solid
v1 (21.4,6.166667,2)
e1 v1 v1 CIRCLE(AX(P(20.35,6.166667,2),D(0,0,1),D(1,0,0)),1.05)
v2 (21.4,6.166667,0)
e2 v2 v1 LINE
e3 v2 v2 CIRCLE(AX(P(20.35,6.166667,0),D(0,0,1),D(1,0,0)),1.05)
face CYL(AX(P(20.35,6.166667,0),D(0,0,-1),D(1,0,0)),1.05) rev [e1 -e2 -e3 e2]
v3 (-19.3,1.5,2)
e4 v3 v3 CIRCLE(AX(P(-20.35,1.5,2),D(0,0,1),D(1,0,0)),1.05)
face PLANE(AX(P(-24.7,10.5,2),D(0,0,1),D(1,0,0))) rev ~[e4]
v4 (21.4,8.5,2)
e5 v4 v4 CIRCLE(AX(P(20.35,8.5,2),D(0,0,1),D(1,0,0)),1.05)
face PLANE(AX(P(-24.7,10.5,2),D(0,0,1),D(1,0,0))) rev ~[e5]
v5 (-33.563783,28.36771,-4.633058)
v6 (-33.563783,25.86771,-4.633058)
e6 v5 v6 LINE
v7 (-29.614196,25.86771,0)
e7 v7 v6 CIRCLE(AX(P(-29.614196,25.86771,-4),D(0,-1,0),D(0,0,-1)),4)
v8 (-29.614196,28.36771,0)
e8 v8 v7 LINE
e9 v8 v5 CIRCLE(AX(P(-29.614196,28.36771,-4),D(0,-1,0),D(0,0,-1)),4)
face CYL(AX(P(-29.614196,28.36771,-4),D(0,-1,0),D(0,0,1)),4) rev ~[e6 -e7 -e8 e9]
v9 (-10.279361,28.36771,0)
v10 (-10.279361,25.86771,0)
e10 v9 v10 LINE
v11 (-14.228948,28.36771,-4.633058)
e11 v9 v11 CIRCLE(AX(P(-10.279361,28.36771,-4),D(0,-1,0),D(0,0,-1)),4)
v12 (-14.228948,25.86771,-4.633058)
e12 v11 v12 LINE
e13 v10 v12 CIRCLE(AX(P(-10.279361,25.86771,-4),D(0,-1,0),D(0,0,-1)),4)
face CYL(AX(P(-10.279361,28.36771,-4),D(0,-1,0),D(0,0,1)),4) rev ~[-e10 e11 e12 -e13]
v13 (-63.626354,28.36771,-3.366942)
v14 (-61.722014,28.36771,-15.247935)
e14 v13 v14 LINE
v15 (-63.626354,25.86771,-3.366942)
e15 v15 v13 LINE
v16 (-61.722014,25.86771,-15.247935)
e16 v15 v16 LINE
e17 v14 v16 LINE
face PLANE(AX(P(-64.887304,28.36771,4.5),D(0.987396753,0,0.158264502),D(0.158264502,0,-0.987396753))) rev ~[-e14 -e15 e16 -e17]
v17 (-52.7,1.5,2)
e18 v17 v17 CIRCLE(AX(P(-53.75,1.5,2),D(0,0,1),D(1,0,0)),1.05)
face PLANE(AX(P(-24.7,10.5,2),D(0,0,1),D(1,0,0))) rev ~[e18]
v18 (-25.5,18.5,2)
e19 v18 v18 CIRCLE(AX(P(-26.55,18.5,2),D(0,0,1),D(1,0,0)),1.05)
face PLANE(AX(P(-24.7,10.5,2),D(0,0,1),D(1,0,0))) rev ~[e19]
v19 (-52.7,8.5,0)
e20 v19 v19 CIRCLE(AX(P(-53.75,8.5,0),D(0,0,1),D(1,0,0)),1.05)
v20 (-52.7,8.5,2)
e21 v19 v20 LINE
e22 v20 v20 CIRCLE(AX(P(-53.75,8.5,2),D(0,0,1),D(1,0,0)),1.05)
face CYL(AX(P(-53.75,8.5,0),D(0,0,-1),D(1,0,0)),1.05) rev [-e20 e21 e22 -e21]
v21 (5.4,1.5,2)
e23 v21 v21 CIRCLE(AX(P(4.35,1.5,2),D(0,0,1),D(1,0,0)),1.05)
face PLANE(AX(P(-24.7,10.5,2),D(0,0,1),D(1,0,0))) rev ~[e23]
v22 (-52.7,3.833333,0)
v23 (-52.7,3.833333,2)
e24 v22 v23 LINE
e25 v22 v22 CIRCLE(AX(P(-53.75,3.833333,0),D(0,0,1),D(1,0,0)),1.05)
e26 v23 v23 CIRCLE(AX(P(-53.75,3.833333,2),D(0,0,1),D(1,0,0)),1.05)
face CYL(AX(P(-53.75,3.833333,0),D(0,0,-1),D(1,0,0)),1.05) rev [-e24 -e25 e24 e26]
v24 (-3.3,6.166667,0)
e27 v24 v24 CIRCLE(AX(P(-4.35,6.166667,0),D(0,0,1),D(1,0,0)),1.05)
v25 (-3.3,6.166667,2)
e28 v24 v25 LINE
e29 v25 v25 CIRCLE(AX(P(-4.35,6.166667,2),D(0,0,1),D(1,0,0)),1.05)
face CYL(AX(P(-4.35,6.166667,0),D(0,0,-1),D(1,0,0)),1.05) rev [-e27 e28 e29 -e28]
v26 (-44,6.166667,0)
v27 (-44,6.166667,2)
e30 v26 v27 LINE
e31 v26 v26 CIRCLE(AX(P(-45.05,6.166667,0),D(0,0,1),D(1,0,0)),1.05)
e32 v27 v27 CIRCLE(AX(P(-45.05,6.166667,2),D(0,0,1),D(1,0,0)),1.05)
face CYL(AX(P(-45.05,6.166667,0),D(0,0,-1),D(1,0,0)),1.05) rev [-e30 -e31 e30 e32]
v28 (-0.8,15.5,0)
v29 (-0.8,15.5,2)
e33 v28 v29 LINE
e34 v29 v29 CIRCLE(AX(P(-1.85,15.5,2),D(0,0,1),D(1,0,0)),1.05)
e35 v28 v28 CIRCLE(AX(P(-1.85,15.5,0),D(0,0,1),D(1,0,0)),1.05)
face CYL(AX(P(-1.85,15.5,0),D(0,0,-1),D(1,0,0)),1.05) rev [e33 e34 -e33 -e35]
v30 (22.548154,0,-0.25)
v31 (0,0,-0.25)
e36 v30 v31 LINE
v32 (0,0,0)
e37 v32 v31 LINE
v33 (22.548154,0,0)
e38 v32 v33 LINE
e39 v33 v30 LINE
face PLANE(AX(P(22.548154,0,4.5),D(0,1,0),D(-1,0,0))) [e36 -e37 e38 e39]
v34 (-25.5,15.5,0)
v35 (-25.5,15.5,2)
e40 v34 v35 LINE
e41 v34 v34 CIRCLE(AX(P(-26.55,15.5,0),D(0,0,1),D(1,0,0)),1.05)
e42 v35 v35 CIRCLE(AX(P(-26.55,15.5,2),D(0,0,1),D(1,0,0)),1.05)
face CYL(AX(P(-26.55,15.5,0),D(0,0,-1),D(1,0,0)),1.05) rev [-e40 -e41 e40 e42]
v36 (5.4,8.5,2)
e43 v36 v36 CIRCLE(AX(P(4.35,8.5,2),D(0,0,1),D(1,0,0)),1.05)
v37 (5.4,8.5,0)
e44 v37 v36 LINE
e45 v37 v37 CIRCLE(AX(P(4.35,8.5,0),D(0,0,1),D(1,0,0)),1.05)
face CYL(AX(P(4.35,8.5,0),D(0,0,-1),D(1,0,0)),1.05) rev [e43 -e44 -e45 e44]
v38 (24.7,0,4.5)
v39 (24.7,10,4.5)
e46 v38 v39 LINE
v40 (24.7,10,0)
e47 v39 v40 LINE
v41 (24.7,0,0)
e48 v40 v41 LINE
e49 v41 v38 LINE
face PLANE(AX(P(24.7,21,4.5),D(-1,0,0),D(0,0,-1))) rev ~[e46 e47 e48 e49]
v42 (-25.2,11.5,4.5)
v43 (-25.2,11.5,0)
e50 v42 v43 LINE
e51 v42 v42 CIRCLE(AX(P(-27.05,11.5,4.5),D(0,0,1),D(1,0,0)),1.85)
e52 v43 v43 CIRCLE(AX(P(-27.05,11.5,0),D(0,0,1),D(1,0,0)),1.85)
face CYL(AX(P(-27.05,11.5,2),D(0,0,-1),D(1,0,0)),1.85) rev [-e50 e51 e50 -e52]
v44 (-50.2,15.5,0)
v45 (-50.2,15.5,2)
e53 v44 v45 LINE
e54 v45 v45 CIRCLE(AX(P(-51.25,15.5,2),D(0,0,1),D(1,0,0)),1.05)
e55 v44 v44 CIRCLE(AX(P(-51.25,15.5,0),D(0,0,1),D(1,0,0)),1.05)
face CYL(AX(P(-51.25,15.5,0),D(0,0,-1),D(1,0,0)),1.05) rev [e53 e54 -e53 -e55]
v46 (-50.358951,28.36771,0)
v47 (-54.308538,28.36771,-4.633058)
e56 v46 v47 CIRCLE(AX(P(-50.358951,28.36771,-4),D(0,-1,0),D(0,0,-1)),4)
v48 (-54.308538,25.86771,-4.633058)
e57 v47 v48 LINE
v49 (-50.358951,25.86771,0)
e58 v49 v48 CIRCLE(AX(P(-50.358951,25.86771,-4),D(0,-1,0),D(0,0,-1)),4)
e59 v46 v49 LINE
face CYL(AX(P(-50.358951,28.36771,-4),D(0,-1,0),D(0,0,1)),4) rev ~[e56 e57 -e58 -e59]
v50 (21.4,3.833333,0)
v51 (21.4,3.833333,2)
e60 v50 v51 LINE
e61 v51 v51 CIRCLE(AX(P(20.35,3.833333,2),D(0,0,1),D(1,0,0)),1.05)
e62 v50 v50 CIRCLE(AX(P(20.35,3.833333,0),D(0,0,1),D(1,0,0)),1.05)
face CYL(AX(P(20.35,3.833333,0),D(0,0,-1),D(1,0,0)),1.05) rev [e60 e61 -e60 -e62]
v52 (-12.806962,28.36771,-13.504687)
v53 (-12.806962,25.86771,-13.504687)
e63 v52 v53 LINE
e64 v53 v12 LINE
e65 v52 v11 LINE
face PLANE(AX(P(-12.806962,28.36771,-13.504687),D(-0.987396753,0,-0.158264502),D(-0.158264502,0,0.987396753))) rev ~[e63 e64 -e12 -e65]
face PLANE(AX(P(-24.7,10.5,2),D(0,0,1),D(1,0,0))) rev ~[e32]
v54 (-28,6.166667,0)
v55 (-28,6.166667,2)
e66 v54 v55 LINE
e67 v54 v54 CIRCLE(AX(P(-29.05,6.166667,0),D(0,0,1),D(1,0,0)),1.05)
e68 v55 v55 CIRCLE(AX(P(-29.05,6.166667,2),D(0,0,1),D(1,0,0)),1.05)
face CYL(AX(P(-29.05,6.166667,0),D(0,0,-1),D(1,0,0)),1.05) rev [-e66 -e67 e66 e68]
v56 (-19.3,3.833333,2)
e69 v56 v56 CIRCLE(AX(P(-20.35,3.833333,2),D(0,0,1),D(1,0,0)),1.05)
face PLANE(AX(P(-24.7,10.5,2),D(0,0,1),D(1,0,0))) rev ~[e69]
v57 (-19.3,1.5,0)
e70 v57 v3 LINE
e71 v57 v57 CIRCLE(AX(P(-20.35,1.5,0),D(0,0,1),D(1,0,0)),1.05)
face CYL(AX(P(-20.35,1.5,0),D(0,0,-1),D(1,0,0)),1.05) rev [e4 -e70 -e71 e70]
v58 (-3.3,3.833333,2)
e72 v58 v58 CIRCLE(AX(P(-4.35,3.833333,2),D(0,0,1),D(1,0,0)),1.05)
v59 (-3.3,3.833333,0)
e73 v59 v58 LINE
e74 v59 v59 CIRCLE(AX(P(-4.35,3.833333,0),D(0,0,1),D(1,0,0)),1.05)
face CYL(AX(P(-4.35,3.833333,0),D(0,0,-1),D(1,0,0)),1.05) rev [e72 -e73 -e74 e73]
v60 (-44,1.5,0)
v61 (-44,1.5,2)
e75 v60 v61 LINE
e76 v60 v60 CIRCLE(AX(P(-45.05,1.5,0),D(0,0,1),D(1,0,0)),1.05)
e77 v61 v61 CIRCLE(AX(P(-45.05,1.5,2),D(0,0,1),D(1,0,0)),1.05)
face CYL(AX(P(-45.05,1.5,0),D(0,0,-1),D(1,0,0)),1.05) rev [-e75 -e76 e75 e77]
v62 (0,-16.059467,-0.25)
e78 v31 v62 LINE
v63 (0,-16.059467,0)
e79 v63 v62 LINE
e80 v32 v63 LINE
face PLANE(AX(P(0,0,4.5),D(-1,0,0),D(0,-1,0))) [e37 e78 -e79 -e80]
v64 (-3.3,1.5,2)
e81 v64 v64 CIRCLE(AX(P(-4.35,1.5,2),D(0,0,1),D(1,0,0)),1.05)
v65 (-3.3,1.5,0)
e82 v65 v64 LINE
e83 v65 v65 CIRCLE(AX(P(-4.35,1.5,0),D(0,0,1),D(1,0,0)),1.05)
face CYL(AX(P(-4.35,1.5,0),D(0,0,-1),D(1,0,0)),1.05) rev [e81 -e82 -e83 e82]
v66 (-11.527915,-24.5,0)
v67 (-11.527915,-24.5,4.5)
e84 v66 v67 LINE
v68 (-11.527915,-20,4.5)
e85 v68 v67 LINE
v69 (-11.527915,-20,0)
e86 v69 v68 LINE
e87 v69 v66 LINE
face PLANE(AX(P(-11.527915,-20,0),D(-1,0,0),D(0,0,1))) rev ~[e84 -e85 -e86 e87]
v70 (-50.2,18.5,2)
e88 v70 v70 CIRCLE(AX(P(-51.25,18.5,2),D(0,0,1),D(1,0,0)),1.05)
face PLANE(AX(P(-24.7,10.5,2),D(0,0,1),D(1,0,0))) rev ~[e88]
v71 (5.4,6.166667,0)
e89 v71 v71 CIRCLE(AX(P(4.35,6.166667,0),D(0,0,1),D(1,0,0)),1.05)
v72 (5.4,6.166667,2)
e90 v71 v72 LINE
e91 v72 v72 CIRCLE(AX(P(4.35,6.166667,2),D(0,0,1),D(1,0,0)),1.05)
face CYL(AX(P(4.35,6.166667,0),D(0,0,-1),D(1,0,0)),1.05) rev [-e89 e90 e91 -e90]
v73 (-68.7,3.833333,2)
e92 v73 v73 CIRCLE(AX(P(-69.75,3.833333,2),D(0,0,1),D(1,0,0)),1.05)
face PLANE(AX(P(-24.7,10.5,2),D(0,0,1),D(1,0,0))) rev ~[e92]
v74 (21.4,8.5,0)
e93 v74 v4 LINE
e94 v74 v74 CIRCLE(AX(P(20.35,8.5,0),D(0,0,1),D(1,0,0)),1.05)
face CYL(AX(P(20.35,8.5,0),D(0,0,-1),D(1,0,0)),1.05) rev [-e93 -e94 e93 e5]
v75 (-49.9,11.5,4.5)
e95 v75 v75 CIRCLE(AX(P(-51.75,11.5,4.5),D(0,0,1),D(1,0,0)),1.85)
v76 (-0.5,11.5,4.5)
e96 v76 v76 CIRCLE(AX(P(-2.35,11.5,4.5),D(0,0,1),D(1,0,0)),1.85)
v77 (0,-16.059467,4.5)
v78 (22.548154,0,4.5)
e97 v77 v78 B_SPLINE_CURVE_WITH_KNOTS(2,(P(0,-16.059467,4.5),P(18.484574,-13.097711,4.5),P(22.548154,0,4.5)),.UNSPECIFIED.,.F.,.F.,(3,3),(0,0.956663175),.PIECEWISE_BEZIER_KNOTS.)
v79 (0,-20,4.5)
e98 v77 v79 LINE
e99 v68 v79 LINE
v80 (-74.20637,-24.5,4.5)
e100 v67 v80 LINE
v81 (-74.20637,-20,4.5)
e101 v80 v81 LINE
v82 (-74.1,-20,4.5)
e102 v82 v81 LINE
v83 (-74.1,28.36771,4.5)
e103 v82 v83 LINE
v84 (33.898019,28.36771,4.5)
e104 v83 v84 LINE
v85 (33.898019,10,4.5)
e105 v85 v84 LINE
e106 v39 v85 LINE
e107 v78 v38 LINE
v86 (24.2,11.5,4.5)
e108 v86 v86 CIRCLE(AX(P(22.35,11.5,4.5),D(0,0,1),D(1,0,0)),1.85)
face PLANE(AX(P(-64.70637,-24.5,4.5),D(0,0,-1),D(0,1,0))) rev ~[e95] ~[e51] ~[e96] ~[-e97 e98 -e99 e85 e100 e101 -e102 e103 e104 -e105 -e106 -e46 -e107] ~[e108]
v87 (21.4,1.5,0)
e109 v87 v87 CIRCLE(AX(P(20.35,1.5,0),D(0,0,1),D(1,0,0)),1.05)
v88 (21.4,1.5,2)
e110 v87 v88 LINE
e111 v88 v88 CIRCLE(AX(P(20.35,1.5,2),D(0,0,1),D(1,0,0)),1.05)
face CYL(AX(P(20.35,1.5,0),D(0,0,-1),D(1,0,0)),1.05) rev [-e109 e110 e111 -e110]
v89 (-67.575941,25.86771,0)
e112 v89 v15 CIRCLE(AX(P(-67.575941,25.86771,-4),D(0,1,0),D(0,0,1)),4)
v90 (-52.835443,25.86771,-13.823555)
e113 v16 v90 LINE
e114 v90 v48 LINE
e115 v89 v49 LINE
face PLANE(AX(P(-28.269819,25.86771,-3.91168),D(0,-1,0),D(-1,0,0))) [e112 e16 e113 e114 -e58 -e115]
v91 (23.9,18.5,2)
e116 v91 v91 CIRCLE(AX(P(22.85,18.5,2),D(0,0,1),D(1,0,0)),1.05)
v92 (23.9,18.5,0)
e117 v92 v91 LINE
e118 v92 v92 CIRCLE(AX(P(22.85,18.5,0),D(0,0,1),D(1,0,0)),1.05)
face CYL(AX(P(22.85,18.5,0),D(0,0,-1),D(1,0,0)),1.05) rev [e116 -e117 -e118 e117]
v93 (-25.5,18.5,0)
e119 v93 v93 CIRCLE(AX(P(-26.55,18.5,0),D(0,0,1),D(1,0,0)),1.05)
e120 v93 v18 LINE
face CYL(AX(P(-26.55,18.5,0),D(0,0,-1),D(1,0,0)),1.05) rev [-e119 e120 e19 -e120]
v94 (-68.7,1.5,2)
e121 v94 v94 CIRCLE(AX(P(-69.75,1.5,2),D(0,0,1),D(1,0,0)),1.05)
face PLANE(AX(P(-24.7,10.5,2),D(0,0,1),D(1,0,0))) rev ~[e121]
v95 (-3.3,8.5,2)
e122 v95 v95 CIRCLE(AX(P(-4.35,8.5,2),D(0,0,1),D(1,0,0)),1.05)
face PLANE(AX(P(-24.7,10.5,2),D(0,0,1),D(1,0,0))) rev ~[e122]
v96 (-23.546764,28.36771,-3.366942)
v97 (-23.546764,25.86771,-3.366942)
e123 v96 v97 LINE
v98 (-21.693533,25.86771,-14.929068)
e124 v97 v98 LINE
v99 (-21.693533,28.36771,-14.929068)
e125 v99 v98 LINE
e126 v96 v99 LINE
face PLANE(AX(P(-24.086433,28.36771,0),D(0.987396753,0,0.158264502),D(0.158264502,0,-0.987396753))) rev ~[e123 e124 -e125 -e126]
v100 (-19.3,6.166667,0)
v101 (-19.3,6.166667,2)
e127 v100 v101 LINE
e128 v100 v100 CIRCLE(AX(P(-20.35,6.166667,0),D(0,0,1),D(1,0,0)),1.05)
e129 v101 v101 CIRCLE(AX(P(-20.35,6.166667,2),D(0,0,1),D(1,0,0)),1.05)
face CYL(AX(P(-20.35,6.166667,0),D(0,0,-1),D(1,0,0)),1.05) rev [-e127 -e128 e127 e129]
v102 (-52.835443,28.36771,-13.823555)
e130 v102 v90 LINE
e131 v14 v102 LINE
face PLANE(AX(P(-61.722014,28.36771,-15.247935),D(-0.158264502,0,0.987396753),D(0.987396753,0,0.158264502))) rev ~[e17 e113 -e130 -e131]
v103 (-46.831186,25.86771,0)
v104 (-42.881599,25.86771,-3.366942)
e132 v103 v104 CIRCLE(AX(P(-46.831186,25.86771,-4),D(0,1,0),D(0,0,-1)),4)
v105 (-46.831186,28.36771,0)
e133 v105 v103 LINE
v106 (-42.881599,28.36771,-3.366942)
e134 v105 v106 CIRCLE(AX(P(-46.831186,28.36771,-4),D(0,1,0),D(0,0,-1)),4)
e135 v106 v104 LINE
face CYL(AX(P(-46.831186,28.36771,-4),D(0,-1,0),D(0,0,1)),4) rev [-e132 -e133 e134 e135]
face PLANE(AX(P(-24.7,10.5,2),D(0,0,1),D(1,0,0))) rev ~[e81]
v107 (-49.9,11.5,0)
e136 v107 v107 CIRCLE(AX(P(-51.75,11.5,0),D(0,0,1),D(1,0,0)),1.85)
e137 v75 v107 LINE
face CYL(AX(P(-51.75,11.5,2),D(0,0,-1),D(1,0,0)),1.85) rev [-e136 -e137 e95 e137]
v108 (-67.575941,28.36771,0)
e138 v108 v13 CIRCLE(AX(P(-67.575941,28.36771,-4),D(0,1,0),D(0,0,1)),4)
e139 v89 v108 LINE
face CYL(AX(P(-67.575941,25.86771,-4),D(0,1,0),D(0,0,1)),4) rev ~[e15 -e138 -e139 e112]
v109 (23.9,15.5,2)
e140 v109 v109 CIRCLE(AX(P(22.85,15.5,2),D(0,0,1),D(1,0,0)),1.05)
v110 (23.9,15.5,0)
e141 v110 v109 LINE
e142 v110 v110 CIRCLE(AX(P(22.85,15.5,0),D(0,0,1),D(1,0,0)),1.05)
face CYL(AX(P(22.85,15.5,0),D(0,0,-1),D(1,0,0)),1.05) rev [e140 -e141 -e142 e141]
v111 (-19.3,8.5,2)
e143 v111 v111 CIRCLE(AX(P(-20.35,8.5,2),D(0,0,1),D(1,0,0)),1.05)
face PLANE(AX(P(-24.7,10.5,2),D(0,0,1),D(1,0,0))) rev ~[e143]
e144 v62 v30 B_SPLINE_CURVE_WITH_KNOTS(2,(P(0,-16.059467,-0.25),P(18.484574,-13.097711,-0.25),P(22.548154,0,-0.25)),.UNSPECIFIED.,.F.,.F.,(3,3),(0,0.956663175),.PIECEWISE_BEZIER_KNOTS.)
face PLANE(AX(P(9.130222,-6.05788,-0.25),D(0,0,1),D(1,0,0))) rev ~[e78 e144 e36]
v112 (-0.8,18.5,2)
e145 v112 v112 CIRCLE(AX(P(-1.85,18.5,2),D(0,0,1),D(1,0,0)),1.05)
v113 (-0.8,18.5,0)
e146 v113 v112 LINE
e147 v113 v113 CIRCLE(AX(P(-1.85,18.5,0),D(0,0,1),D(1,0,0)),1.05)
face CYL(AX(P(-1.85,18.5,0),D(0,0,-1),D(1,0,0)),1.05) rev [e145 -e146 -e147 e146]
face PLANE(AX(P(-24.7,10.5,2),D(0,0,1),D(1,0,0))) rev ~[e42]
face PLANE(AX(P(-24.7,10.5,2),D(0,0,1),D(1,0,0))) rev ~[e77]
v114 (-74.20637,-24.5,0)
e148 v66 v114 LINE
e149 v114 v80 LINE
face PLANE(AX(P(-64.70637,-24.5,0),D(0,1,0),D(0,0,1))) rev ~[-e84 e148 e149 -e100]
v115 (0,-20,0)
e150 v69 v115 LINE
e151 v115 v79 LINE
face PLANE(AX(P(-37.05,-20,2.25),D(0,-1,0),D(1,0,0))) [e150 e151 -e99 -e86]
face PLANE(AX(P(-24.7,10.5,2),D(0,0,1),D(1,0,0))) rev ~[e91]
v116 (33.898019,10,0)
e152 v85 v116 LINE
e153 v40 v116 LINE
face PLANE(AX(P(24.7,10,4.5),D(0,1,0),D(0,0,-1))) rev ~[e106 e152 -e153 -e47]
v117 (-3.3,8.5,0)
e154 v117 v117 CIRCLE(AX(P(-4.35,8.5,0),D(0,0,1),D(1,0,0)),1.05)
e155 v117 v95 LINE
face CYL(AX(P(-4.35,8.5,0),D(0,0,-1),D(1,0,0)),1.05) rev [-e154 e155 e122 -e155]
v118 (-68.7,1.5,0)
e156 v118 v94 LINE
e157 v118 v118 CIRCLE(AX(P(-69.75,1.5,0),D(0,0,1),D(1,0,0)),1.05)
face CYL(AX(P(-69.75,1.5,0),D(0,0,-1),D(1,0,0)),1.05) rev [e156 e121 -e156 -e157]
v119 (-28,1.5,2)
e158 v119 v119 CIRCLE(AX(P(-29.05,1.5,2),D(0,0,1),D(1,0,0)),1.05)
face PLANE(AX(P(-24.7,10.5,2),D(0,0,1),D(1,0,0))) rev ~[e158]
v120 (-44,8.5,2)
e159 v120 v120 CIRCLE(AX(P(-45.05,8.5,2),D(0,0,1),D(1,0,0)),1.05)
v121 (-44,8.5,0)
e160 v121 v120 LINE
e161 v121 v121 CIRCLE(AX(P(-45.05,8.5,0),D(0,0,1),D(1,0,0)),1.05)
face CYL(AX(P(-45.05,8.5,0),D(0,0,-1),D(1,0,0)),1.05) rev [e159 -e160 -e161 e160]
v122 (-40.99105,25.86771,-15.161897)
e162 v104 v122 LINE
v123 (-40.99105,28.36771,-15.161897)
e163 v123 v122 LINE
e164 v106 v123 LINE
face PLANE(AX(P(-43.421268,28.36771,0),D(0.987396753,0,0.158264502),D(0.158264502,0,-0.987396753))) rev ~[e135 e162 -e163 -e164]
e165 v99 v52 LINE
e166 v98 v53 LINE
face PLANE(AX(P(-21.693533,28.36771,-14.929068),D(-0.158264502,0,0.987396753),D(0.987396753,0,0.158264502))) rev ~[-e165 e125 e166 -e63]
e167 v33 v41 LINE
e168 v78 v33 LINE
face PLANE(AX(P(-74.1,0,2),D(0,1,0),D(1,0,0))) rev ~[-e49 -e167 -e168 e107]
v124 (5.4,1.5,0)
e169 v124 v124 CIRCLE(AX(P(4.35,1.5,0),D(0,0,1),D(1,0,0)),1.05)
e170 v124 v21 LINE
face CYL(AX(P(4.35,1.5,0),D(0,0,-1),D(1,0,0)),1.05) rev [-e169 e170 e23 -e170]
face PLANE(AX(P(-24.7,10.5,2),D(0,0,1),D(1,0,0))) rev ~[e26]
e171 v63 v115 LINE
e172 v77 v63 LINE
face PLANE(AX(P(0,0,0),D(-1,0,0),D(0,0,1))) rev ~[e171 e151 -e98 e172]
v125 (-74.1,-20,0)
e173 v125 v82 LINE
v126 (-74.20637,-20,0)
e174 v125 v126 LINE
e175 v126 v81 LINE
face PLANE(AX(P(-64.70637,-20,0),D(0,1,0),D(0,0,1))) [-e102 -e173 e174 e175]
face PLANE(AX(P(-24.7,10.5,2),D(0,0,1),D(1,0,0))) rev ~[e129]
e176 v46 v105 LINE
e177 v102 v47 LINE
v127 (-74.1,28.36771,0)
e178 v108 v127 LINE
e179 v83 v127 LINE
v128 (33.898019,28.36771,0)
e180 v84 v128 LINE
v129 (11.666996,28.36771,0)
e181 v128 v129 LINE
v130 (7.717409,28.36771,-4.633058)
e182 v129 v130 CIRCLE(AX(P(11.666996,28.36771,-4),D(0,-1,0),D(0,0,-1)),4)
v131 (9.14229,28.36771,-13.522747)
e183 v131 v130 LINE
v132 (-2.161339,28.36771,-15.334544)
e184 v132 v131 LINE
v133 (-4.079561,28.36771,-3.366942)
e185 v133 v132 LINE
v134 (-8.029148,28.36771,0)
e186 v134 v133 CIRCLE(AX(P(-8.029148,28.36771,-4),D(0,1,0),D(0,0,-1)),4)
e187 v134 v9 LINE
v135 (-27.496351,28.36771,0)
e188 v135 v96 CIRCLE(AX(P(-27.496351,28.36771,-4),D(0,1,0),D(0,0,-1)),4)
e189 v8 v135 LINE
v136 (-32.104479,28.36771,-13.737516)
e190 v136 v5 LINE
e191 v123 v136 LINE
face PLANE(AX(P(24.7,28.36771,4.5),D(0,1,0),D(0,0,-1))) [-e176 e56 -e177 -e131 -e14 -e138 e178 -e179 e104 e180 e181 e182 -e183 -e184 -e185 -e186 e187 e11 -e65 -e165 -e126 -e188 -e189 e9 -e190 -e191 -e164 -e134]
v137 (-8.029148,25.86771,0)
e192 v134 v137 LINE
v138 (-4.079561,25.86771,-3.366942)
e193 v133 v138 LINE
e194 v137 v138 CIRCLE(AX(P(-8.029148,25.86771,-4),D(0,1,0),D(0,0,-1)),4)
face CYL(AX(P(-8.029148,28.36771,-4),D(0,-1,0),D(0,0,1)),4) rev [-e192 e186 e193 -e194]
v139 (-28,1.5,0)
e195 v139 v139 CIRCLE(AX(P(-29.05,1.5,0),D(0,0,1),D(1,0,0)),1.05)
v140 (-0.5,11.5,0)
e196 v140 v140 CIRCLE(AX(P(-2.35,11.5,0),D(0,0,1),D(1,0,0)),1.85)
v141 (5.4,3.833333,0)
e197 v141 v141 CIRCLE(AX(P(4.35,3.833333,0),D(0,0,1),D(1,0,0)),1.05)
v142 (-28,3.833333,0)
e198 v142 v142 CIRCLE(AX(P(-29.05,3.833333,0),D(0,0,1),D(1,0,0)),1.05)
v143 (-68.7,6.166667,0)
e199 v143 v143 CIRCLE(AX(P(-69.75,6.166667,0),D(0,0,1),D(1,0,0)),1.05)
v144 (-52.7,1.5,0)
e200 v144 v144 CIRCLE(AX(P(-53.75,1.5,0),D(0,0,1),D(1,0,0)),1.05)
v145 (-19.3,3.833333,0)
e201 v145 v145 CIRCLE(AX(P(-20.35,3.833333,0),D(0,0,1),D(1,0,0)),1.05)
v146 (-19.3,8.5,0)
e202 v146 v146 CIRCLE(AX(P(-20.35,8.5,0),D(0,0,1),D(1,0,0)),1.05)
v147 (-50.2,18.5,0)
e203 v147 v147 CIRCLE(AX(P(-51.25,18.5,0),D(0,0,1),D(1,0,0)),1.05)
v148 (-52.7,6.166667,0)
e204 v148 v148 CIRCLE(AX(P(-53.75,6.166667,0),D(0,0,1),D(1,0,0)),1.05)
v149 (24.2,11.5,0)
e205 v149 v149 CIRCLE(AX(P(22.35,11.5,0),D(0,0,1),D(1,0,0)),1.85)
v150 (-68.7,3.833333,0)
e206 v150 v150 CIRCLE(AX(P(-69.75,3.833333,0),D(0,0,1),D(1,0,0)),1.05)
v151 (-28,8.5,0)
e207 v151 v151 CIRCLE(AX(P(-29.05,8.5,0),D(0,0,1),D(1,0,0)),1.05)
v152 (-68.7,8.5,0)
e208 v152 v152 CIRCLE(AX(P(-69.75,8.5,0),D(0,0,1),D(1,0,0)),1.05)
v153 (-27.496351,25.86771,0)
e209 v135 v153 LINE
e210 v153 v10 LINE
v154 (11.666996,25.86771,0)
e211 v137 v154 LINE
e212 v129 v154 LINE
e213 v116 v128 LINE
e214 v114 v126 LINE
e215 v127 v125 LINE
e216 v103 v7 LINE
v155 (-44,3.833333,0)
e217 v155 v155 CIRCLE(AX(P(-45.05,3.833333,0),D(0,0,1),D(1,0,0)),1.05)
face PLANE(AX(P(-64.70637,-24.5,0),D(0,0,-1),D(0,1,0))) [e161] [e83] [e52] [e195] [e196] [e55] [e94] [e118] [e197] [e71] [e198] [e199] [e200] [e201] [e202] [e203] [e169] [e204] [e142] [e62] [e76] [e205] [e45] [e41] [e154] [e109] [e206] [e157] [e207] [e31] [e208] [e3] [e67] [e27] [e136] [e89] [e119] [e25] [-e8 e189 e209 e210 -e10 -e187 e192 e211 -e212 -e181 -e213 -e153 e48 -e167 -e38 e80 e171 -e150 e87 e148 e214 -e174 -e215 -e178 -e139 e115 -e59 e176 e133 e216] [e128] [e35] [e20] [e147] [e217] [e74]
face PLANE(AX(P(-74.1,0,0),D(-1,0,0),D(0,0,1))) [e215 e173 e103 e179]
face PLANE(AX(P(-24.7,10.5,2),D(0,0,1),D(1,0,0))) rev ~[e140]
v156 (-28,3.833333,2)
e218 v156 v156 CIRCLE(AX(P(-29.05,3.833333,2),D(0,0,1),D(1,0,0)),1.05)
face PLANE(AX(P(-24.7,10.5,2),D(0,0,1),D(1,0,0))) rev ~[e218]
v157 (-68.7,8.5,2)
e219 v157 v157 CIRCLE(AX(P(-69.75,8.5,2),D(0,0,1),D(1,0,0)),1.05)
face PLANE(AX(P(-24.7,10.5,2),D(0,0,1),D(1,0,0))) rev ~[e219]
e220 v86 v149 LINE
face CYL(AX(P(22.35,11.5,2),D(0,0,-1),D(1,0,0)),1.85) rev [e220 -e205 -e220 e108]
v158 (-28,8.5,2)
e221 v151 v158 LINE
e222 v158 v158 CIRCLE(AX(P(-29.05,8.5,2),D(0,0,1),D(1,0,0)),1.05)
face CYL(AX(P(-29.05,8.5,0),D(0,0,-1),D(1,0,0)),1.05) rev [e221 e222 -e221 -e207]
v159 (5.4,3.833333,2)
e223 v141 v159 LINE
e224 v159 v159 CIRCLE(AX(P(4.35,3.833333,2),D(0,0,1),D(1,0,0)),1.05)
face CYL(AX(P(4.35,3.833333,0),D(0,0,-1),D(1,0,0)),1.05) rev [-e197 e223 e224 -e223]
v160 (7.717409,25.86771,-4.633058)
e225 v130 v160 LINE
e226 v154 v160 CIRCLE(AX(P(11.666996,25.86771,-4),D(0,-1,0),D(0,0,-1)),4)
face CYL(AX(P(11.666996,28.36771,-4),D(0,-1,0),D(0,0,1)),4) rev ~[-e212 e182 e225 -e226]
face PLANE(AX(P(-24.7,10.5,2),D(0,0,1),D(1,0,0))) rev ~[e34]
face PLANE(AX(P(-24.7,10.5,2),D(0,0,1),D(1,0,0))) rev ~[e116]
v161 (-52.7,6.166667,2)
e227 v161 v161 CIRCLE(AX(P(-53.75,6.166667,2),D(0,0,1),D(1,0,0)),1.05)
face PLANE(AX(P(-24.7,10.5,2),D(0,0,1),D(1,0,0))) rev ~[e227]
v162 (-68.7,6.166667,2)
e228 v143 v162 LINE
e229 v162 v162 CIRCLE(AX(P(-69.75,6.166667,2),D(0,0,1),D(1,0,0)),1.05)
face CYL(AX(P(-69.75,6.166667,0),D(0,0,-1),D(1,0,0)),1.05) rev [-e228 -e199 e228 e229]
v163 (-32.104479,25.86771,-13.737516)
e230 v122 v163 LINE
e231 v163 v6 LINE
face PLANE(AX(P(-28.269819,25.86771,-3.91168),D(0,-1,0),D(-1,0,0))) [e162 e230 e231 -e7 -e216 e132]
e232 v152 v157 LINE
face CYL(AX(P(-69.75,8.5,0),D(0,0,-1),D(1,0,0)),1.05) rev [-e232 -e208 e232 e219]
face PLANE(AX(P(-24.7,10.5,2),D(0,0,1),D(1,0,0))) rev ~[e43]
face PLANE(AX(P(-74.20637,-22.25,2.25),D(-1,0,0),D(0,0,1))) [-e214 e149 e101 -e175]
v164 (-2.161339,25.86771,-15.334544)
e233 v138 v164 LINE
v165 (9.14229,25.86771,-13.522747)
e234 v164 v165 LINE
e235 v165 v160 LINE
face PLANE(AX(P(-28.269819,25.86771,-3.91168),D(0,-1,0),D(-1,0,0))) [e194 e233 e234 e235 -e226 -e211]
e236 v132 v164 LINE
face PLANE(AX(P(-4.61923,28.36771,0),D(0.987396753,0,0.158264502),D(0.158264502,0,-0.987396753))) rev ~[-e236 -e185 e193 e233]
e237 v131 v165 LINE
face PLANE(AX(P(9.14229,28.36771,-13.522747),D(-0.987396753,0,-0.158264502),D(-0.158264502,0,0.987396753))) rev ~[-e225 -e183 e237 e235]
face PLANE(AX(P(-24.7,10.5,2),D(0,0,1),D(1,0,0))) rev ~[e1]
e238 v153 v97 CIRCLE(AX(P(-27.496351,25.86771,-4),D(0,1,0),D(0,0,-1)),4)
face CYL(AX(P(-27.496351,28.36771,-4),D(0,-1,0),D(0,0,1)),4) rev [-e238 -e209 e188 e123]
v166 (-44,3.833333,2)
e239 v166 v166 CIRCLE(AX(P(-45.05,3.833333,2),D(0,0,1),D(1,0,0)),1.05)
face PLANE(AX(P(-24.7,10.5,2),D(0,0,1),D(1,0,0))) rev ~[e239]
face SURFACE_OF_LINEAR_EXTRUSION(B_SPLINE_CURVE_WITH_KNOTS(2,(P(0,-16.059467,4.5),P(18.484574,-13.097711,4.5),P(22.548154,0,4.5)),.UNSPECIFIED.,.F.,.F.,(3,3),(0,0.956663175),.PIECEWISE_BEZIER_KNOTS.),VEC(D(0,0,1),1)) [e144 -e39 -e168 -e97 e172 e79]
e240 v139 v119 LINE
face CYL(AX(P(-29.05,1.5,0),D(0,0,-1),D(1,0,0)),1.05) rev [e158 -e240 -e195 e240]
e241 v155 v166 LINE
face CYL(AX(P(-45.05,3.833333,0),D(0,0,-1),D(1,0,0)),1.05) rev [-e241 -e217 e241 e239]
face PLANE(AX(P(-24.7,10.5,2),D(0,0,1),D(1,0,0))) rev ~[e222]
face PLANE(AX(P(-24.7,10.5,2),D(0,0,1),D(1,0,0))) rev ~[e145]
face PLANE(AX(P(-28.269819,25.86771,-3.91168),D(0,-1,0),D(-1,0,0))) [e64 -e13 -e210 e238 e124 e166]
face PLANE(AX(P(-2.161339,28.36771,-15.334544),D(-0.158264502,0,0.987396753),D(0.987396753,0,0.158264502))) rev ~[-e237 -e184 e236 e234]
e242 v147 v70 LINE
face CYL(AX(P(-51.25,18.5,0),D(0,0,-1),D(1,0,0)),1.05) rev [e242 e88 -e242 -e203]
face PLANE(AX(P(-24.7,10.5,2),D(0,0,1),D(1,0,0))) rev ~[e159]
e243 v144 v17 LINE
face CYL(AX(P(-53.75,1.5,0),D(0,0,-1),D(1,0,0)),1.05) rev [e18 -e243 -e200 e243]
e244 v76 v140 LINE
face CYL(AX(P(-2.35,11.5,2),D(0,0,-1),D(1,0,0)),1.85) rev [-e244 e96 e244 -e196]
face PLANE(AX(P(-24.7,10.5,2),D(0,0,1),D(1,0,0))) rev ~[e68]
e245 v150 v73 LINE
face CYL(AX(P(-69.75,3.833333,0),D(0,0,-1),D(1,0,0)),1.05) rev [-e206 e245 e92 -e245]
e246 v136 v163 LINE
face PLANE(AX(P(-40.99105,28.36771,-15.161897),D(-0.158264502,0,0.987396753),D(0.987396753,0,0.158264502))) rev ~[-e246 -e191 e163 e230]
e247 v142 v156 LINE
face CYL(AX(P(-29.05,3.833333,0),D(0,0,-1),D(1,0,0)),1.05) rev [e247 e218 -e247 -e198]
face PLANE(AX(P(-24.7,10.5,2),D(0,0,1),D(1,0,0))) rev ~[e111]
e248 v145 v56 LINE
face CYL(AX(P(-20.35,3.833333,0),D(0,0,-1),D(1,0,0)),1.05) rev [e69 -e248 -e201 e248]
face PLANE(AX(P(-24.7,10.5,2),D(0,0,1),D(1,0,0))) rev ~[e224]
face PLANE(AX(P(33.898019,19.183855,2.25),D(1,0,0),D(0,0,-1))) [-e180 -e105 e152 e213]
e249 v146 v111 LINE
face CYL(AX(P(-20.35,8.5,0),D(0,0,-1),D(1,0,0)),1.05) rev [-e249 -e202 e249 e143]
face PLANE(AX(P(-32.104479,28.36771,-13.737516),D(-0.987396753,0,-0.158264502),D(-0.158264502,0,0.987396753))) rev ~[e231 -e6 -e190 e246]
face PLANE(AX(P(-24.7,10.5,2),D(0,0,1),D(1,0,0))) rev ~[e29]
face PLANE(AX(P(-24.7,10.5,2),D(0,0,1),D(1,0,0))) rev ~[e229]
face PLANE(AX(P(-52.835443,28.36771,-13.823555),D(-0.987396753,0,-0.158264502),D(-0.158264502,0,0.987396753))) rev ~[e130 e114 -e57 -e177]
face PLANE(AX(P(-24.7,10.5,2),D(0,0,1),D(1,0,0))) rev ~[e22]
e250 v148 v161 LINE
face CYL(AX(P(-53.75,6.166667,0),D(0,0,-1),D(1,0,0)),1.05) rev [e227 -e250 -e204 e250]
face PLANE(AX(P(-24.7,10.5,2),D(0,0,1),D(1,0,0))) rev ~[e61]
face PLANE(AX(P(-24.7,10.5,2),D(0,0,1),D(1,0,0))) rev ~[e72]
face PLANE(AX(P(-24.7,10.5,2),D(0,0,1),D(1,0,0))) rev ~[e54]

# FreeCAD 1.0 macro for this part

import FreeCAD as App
import Part
import Sketcher


def edges_at(feature, points):
    """Names of the edges that pass closest to the given points."""
    edges = feature.Shape.Edges
    near = lambda p: min(range(len(edges)), key=lambda i: edges[i].distToShape(Part.Vertex(*p))[0])
    return sorted({f"Edge{near(p) + 1}" for p in points})

doc = App.newDocument("Part")
body = doc.addObject("PartDesign::Body", "Body")

# Sketch on XY plane
sketch1 = body.newObject("Sketcher::SketchObject", "Sketch")
sketch1.AttachmentSupport = (doc.getObject("XY_Plane"), [""])
sketch1.MapMode = "FlatFace"
sketch1.addGeometry(Part.LineSegment(App.Vector(0, 21, 0), App.Vector(0, 0, 0)), False)
sketch1.addGeometry(Part.LineSegment(App.Vector(0, 0, 0), App.Vector(24.7, 0, 0)), False)
sketch1.addGeometry(Part.LineSegment(App.Vector(24.7, 0, 0), App.Vector(24.7, 21, 0)), False)
sketch1.addGeometry(Part.LineSegment(App.Vector(24.7, 21, 0), App.Vector(0, 21, 0)), False)
sketch1.addGeometry(Part.Circle(App.Vector(4.3, 1.5, 0), App.Vector(0, 0, 1), 1.1), False)
sketch1.addGeometry(Part.Circle(App.Vector(4.3, 3.8, 0), App.Vector(0, 0, 1), 1.1), False)
sketch1.addGeometry(Part.Circle(App.Vector(4.3, 6.2, 0), App.Vector(0, 0, 1), 1.1), False)
sketch1.addGeometry(Part.Circle(App.Vector(4.3, 8.5, 0), App.Vector(0, 0, 1), 1.1), False)
sketch1.addGeometry(Part.Circle(App.Vector(20.4, 1.5, 0), App.Vector(0, 0, 1), 1.1), False)
sketch1.addGeometry(Part.Circle(App.Vector(20.4, 3.8, 0), App.Vector(0, 0, 1), 1.1), False)
sketch1.addGeometry(Part.Circle(App.Vector(20.4, 6.2, 0), App.Vector(0, 0, 1), 1.1), False)
sketch1.addGeometry(Part.Circle(App.Vector(20.4, 8.5, 0), App.Vector(0, 0, 1), 1.1), False)
sketch1.addGeometry(Part.Circle(App.Vector(22.4, 11.5, 0), App.Vector(0, 0, 1), 1.9), False)
sketch1.addGeometry(Part.Circle(App.Vector(22.9, 15.5, 0), App.Vector(0, 0, 1), 1.1), False)
sketch1.addGeometry(Part.Circle(App.Vector(22.9, 18.5, 0), App.Vector(0, 0, 1), 1.1), False)
sketch1.addConstraint(Sketcher.Constraint("Coincident", 0, 2, 1, 1))
sketch1.addConstraint(Sketcher.Constraint("Coincident", 1, 2, 2, 1))
sketch1.addConstraint(Sketcher.Constraint("Coincident", 2, 2, 3, 1))
sketch1.addConstraint(Sketcher.Constraint("Coincident", 3, 2, 0, 1))
sketch1.addConstraint(Sketcher.Constraint("Vertical", 0))
sketch1.addConstraint(Sketcher.Constraint("Horizontal", 1))
sketch1.addConstraint(Sketcher.Constraint("Vertical", 2))
sketch1.addConstraint(Sketcher.Constraint("Horizontal", 3))
sketch1.addConstraint(Sketcher.Constraint("Coincident", 0, 2, -1, 1))
sketch1.addConstraint(Sketcher.Constraint("Equal", 4, 5))
sketch1.addConstraint(Sketcher.Constraint("Equal", 5, 6))
sketch1.addConstraint(Sketcher.Constraint("Equal", 6, 7))
sketch1.addConstraint(Sketcher.Constraint("Equal", 7, 8))
sketch1.addConstraint(Sketcher.Constraint("Equal", 8, 9))
sketch1.addConstraint(Sketcher.Constraint("Equal", 9, 10))
sketch1.addConstraint(Sketcher.Constraint("Equal", 10, 11))
sketch1.addConstraint(Sketcher.Constraint("Equal", 11, 13))
sketch1.addConstraint(Sketcher.Constraint("Equal", 13, 14))
sketch1.addConstraint(Sketcher.Constraint("Horizontal", 4, 3, 8, 3))
sketch1.addConstraint(Sketcher.Constraint("Horizontal", 5, 3, 9, 3))
sketch1.addConstraint(Sketcher.Constraint("Horizontal", 6, 3, 10, 3))
sketch1.addConstraint(Sketcher.Constraint("Horizontal", 7, 3, 11, 3))
sketch1.addConstraint(Sketcher.Constraint("Vertical", 4, 3, 5, 3))
sketch1.addConstraint(Sketcher.Constraint("Vertical", 5, 3, 6, 3))
sketch1.addConstraint(Sketcher.Constraint("Vertical", 6, 3, 7, 3))
sketch1.addConstraint(Sketcher.Constraint("Vertical", 8, 3, 9, 3))
sketch1.addConstraint(Sketcher.Constraint("Vertical", 9, 3, 10, 3))
sketch1.addConstraint(Sketcher.Constraint("Vertical", 10, 3, 11, 3))
sketch1.addConstraint(Sketcher.Constraint("Vertical", 13, 3, 14, 3))
sketch1.addConstraint(Sketcher.Constraint("Diameter", 4, 2.1))
sketch1.addConstraint(Sketcher.Constraint("Diameter", 12, 3.7))
sketch1.addConstraint(Sketcher.Constraint("DistanceY", 0, 2, 0, 1, 21.0))
sketch1.addConstraint(Sketcher.Constraint("DistanceX", 1, 1, 1, 2, 24.7))
sketch1.addConstraint(Sketcher.Constraint("DistanceY", 4, 3, 7, 3, 7.0))
sketch1.addConstraint(Sketcher.Constraint("DistanceX", 4, 3, 8, 3, 16.0))
sketch1.addConstraint(Sketcher.Constraint("DistanceX", 11, 3, 12, 3, 2.0))
sketch1.addConstraint(Sketcher.Constraint("DistanceY", 11, 3, 12, 3, 3.0))
sketch1.addConstraint(Sketcher.Constraint("DistanceY", 12, 3, 13, 3, 4.0))
sketch1.addConstraint(Sketcher.Constraint("DistanceY", 13, 3, 14, 3, 3.0))
sketch1.addConstraint(Sketcher.Constraint("DistanceY", -1, 1, 4, 3, 1.5))
sketch1.addConstraint(Sketcher.Constraint("DistanceX", 12, 3, 13, 3, 0.5))
sketch1.addConstraint(Sketcher.Constraint("DistanceX", -1, 1, 4, 3, 4.35))
sketch1.addConstraint(Sketcher.Constraint("DistanceY", -1, 1, 5, 3, 3.833333))
sketch1.addConstraint(Sketcher.Constraint("DistanceY", -1, 1, 6, 3, 6.166667))
pad1 = body.newObject("PartDesign::Pad", "Pad")
pad1.Profile = sketch1
pad1.Length = 2
doc.recompute()

linearpattern = body.newObject("PartDesign::LinearPattern", "LinearPattern")
linearpattern.Originals = [pad1]
linearpattern.Direction = (doc.getObject("X_Axis"), [""])
linearpattern.Mode = "offset"
linearpattern.Offset = 24.7
linearpattern.Occurrences = 4
linearpattern.Reversed = True
body.Tip = linearpattern

# Sketch on XY plane
sketch2 = body.newObject("Sketcher::SketchObject", "Sketch001")
sketch2.AttachmentSupport = (doc.getObject("XY_Plane"), [""])
sketch2.MapMode = "FlatFace"
sketch2.AttachmentOffset = App.Placement(App.Vector(0, 0, 2), App.Rotation())
sketch2.addGeometry(Part.LineSegment(App.Vector(-74.1, 21, 0), App.Vector(-74.1, 0, 0)), False)
sketch2.addGeometry(Part.LineSegment(App.Vector(-74.1, 0, 0), App.Vector(24.7, 0, 0)), False)
sketch2.addGeometry(Part.LineSegment(App.Vector(24.7, 0, 0), App.Vector(24.7, 21, 0)), False)
sketch2.addGeometry(Part.LineSegment(App.Vector(24.7, 21, 0), App.Vector(-74.1, 21, 0)), False)
sketch2.addGeometry(Part.Circle(App.Vector(-51.7, 11.5, 0), App.Vector(0, 0, 1), 1.9), False)
sketch2.addGeometry(Part.Circle(App.Vector(-27, 11.5, 0), App.Vector(0, 0, 1), 1.9), False)
sketch2.addGeometry(Part.Circle(App.Vector(-2.3, 11.5, 0), App.Vector(0, 0, 1), 1.9), False)
sketch2.addGeometry(Part.Circle(App.Vector(22.4, 11.5, 0), App.Vector(0, 0, 1), 1.9), False)
sketch2.addConstraint(Sketcher.Constraint("Coincident", 0, 2, 1, 1))
sketch2.addConstraint(Sketcher.Constraint("Coincident", 1, 2, 2, 1))
sketch2.addConstraint(Sketcher.Constraint("Coincident", 2, 2, 3, 1))
sketch2.addConstraint(Sketcher.Constraint("Coincident", 3, 2, 0, 1))
sketch2.addConstraint(Sketcher.Constraint("Vertical", 0))
sketch2.addConstraint(Sketcher.Constraint("Horizontal", 1))
sketch2.addConstraint(Sketcher.Constraint("Vertical", 2))
sketch2.addConstraint(Sketcher.Constraint("Horizontal", 3))
sketch2.addConstraint(Sketcher.Constraint("Equal", 4, 5))
sketch2.addConstraint(Sketcher.Constraint("Equal", 5, 6))
sketch2.addConstraint(Sketcher.Constraint("Equal", 6, 7))
sketch2.addConstraint(Sketcher.Constraint("PointOnObject", 0, 2, -1))
sketch2.addConstraint(Sketcher.Constraint("Horizontal", 4, 3, 5, 3))
sketch2.addConstraint(Sketcher.Constraint("Horizontal", 5, 3, 6, 3))
sketch2.addConstraint(Sketcher.Constraint("Horizontal", 6, 3, 7, 3))
sketch2.addConstraint(Sketcher.Constraint("Diameter", 4, 3.7))
sketch2.addConstraint(Sketcher.Constraint("DistanceY", 0, 2, 0, 1, 21.0))
sketch2.addConstraint(Sketcher.Constraint("DistanceX", 1, 1, 1, 2, 98.8))
sketch2.addConstraint(Sketcher.Constraint("DistanceY", -1, 1, 4, 3, 11.5))
sketch2.addConstraint(Sketcher.Constraint("DistanceX", 0, 2, -1, 1, 74.1))
sketch2.addConstraint(Sketcher.Constraint("DistanceX", 4, 3, 5, 3, 24.7))
sketch2.addConstraint(Sketcher.Constraint("DistanceX", 5, 3, 6, 3, 24.7))
sketch2.addConstraint(Sketcher.Constraint("DistanceX", 6, 3, 7, 3, 24.7))
sketch2.addConstraint(Sketcher.Constraint("DistanceX", 4, 3, -1, 1, 51.75))
pad2 = body.newObject("PartDesign::Pad", "Pad001")
pad2.Profile = sketch2
pad2.Length = 2.5

# Sketch on XZ plane
sketch3 = body.newObject("Sketcher::SketchObject", "Sketch002")
sketch3.AttachmentSupport = (doc.getObject("XZ_Plane"), [""])
sketch3.MapMode = "FlatFace"
sketch3.AttachmentOffset = App.Placement(App.Vector(0, 0, -21), App.Rotation())
sketch3.addGeometry(Part.LineSegment(App.Vector(-74.1, 0, 0), App.Vector(-74.1, 4.5, 0)), False)
sketch3.addGeometry(Part.LineSegment(App.Vector(-74.1, 4.5, 0), App.Vector(24.7, 4.5, 0)), False)
sketch3.addGeometry(Part.LineSegment(App.Vector(24.7, 4.5, 0), App.Vector(24.7, 0, 0)), False)
sketch3.addGeometry(Part.LineSegment(App.Vector(24.7, 0, 0), App.Vector(-74.1, 0, 0)), False)
sketch3.addConstraint(Sketcher.Constraint("Coincident", 0, 2, 1, 1))
sketch3.addConstraint(Sketcher.Constraint("Coincident", 1, 2, 2, 1))
sketch3.addConstraint(Sketcher.Constraint("Coincident", 2, 2, 3, 1))
sketch3.addConstraint(Sketcher.Constraint("Coincident", 3, 2, 0, 1))
sketch3.addConstraint(Sketcher.Constraint("Vertical", 0))
sketch3.addConstraint(Sketcher.Constraint("Horizontal", 1))
sketch3.addConstraint(Sketcher.Constraint("Vertical", 2))
sketch3.addConstraint(Sketcher.Constraint("Horizontal", 3))
sketch3.addConstraint(Sketcher.Constraint("PointOnObject", 2, 2, -1))
sketch3.addConstraint(Sketcher.Constraint("DistanceX", 1, 1, 1, 2, 98.8))
sketch3.addConstraint(Sketcher.Constraint("DistanceY", 0, 1, 0, 2, 4.5))
sketch3.addConstraint(Sketcher.Constraint("DistanceX", 0, 2, -1, 1, 74.1))
pad3 = body.newObject("PartDesign::Pad", "Pad002")
pad3.Profile = sketch3
pad3.Length = 7.36771
pad3.Reversed = True

# Sketch on YZ plane
sketch4 = body.newObject("Sketcher::SketchObject", "Sketch003")
sketch4.AttachmentSupport = (doc.getObject("YZ_Plane"), [""])
sketch4.MapMode = "FlatFace"
sketch4.AttachmentOffset = App.Placement(App.Vector(0, 0, 24.7), App.Rotation())
sketch4.addGeometry(Part.LineSegment(App.Vector(28.4, 4.5, 0), App.Vector(10, 4.5, 0)), False)
sketch4.addGeometry(Part.LineSegment(App.Vector(10, 4.5, 0), App.Vector(10, 0, 0)), False)
sketch4.addGeometry(Part.LineSegment(App.Vector(10, 0, 0), App.Vector(28.4, 0, 0)), False)
sketch4.addGeometry(Part.LineSegment(App.Vector(28.4, 0, 0), App.Vector(28.4, 4.5, 0)), False)
sketch4.addConstraint(Sketcher.Constraint("Coincident", 0, 2, 1, 1))
sketch4.addConstraint(Sketcher.Constraint("Coincident", 1, 2, 2, 1))
sketch4.addConstraint(Sketcher.Constraint("Coincident", 2, 2, 3, 1))
sketch4.addConstraint(Sketcher.Constraint("Coincident", 3, 2, 0, 1))
sketch4.addConstraint(Sketcher.Constraint("Horizontal", 0))
sketch4.addConstraint(Sketcher.Constraint("Vertical", 1))
sketch4.addConstraint(Sketcher.Constraint("Horizontal", 2))
sketch4.addConstraint(Sketcher.Constraint("Vertical", 3))
sketch4.addConstraint(Sketcher.Constraint("PointOnObject", 1, 2, -1))
sketch4.addConstraint(Sketcher.Constraint("DistanceY", 1, 2, 1, 1, 4.5))
sketch4.addConstraint(Sketcher.Constraint("DistanceX", -1, 1, 0, 2, 10.0))
sketch4.addConstraint(Sketcher.Constraint("DistanceX", 0, 2, 0, 1, 18.36771))
pad4 = body.newObject("PartDesign::Pad", "Pad003")
pad4.Profile = sketch4
pad4.Length = 9.198019

# Sketch on XZ plane
sketch5 = body.newObject("Sketcher::SketchObject", "Sketch004")
sketch5.AttachmentSupport = (doc.getObject("XZ_Plane"), [""])
sketch5.MapMode = "FlatFace"
sketch5.addGeometry(Part.LineSegment(App.Vector(-74.1, 4.5, 0), App.Vector(-74.1, 0, 0)), False)
sketch5.addGeometry(Part.LineSegment(App.Vector(-74.1, 0, 0), App.Vector(0, 0, 0)), False)
sketch5.addGeometry(Part.LineSegment(App.Vector(0, 0, 0), App.Vector(0, 4.5, 0)), False)
sketch5.addGeometry(Part.LineSegment(App.Vector(0, 4.5, 0), App.Vector(-74.1, 4.5, 0)), False)
sketch5.addConstraint(Sketcher.Constraint("Coincident", 0, 2, 1, 1))
sketch5.addConstraint(Sketcher.Constraint("Coincident", 1, 2, 2, 1))
sketch5.addConstraint(Sketcher.Constraint("Coincident", 2, 2, 3, 1))
sketch5.addConstraint(Sketcher.Constraint("Coincident", 3, 2, 0, 1))
sketch5.addConstraint(Sketcher.Constraint("Vertical", 0))
sketch5.addConstraint(Sketcher.Constraint("Horizontal", 1))
sketch5.addConstraint(Sketcher.Constraint("Vertical", 2))
sketch5.addConstraint(Sketcher.Constraint("Horizontal", 3))
sketch5.addConstraint(Sketcher.Constraint("Coincident", 1, 2, -1, 1))
sketch5.addConstraint(Sketcher.Constraint("DistanceX", 1, 1, 1, 2, 74.1))
sketch5.addConstraint(Sketcher.Constraint("DistanceY", 0, 2, 0, 1, 4.5))
pad5 = body.newObject("PartDesign::Pad", "Pad004")
pad5.Profile = sketch5
pad5.Length = 20

# Sketch on XZ plane
sketch6 = body.newObject("Sketcher::SketchObject", "Sketch005")
sketch6.AttachmentSupport = (doc.getObject("XZ_Plane"), [""])
sketch6.MapMode = "FlatFace"
sketch6.AttachmentOffset = App.Placement(App.Vector(0, 0, 20), App.Rotation())
sketch6.addGeometry(Part.LineSegment(App.Vector(-64.7, 4.5, 0), App.Vector(-64.7, 0, 0)), False)
sketch6.addGeometry(Part.LineSegment(App.Vector(-64.7, 0, 0), App.Vector(-11.5, 0, 0)), False)
sketch6.addGeometry(Part.LineSegment(App.Vector(-11.5, 0, 0), App.Vector(-11.5, 4.5, 0)), False)
sketch6.addGeometry(Part.LineSegment(App.Vector(-11.5, 4.5, 0), App.Vector(-64.7, 4.5, 0)), False)
sketch6.addConstraint(Sketcher.Constraint("Coincident", 0, 2, 1, 1))
sketch6.addConstraint(Sketcher.Constraint("Coincident", 1, 2, 2, 1))
sketch6.addConstraint(Sketcher.Constraint("Coincident", 2, 2, 3, 1))
sketch6.addConstraint(Sketcher.Constraint("Coincident", 3, 2, 0, 1))
sketch6.addConstraint(Sketcher.Constraint("Vertical", 0))
sketch6.addConstraint(Sketcher.Constraint("Horizontal", 1))
sketch6.addConstraint(Sketcher.Constraint("Vertical", 2))
sketch6.addConstraint(Sketcher.Constraint("Horizontal", 3))
sketch6.addConstraint(Sketcher.Constraint("PointOnObject", 0, 2, -1))
sketch6.addConstraint(Sketcher.Constraint("DistanceY", 0, 2, 0, 1, 4.5))
sketch6.addConstraint(Sketcher.Constraint("DistanceX", 1, 1, 1, 2, 53.178454))
sketch6.addConstraint(Sketcher.Constraint("DistanceX", 0, 2, -1, 1, 64.70637))
pad6 = body.newObject("PartDesign::Pad", "Pad005")
pad6.Profile = sketch6
pad6.Length = 4.5

# Sketch on XY plane
sketch7 = body.newObject("Sketcher::SketchObject", "Sketch006")
sketch7.AttachmentSupport = (doc.getObject("XY_Plane"), [""])
sketch7.MapMode = "FlatFace"
sketch7.AttachmentOffset = App.Placement(App.Vector(0, 0, 4.5), App.Rotation())
sketch7.addGeometry(Part.LineSegment(App.Vector(0, 0, 0), App.Vector(0, -16.059467, 0)), False)
sketch7.addGeometry(Part.BSplineCurve([App.Vector(0, -16.059467, 0), App.Vector(18.484574, -13.097711, 0), App.Vector(22.548154, 0, 0)], [3, 3], [0, 0.956663175], False, 2, [1, 1, 1], False), False)
sketch7.addGeometry(Part.LineSegment(App.Vector(22.548154, 0, 0), App.Vector(0, 0, 0)), False)
sketch7.addConstraint(Sketcher.Constraint("Block", 1))
sketch7.addConstraint(Sketcher.Constraint("Coincident", 0, 2, 1, 1))
sketch7.addConstraint(Sketcher.Constraint("Coincident", 1, 2, 2, 1))
sketch7.addConstraint(Sketcher.Constraint("Coincident", 2, 2, 0, 1))
sketch7.addConstraint(Sketcher.Constraint("Vertical", 0))
sketch7.addConstraint(Sketcher.Constraint("Horizontal", 2))
pad7 = body.newObject("PartDesign::Pad", "Pad006")
pad7.Profile = sketch7
pad7.Length = 4.75
pad7.Reversed = True

# Sketch on XZ plane
sketch8 = body.newObject("Sketcher::SketchObject", "Sketch007")
sketch8.AttachmentSupport = (doc.getObject("XZ_Plane"), [""])
sketch8.MapMode = "FlatFace"
sketch8.AttachmentOffset = App.Placement(App.Vector(0, 0, -28.36771), App.Rotation())
sketch8.addGeometry(Part.LineSegment(App.Vector(-61.7, -15.2, 0), App.Vector(-64.9, 4.5, 0)), False)
sketch8.addGeometry(Part.LineSegment(App.Vector(-64.9, 4.5, 0), App.Vector(7, 4.5, 0)), False)
sketch8.addGeometry(Part.LineSegment(App.Vector(7, 4.5, 0), App.Vector(7, 0, 0)), False)
sketch8.addGeometry(Part.LineSegment(App.Vector(7, 0, 0), App.Vector(9.1, -13.5, 0)), False)
sketch8.addGeometry(Part.LineSegment(App.Vector(9.1, -13.5, 0), App.Vector(-2.2, -15.3, 0)), False)
sketch8.addGeometry(Part.LineSegment(App.Vector(-2.2, -15.3, 0), App.Vector(-4.6, 0, 0)), False)
sketch8.addGeometry(Part.LineSegment(App.Vector(-4.6, 0, 0), App.Vector(-15, 0.4, 0)), False)
sketch8.addGeometry(Part.LineSegment(App.Vector(-15, 0.4, 0), App.Vector(-12.8, -13.5, 0)), False)
sketch8.addGeometry(Part.LineSegment(App.Vector(-12.8, -13.5, 0), App.Vector(-21.7, -14.9, 0)), False)
sketch8.addGeometry(Part.LineSegment(App.Vector(-21.7, -14.9, 0), App.Vector(-24.1, 0, 0)), False)
sketch8.addGeometry(Part.LineSegment(App.Vector(-24.1, 0, 0), App.Vector(-34.3, 0, 0)), False)
sketch8.addGeometry(Part.LineSegment(App.Vector(-34.3, 0, 0), App.Vector(-32.1, -13.7, 0)), False)
sketch8.addGeometry(Part.LineSegment(App.Vector(-32.1, -13.7, 0), App.Vector(-41, -15.2, 0)), False)
sketch8.addGeometry(Part.LineSegment(App.Vector(-41, -15.2, 0), App.Vector(-43.4, 0, 0)), False)
sketch8.addGeometry(Part.LineSegment(App.Vector(-43.4, 0, 0), App.Vector(-55.1, 0, 0)), False)
sketch8.addGeometry(Part.LineSegment(App.Vector(-55.1, 0, 0), App.Vector(-52.8, -13.8, 0)), False)
sketch8.addGeometry(Part.LineSegment(App.Vector(-52.8, -13.8, 0), App.Vector(-61.7, -15.2, 0)), False)
sketch8.addConstraint(Sketcher.Constraint("Coincident", 0, 2, 1, 1))
sketch8.addConstraint(Sketcher.Constraint("Coincident", 1, 2, 2, 1))
sketch8.addConstraint(Sketcher.Constraint("Coincident", 2, 2, 3, 1))
sketch8.addConstraint(Sketcher.Constraint("Coincident", 3, 2, 4, 1))
sketch8.addConstraint(Sketcher.Constraint("Coincident", 4, 2, 5, 1))
sketch8.addConstraint(Sketcher.Constraint("Coincident", 5, 2, 6, 1))
sketch8.addConstraint(Sketcher.Constraint("Coincident", 6, 2, 7, 1))
sketch8.addConstraint(Sketcher.Constraint("Coincident", 7, 2, 8, 1))
sketch8.addConstraint(Sketcher.Constraint("Coincident", 8, 2, 9, 1))
sketch8.addConstraint(Sketcher.Constraint("Coincident", 9, 2, 10, 1))
sketch8.addConstraint(Sketcher.Constraint("Coincident", 10, 2, 11, 1))
sketch8.addConstraint(Sketcher.Constraint("Coincident", 11, 2, 12, 1))
sketch8.addConstraint(Sketcher.Constraint("Coincident", 12, 2, 13, 1))
sketch8.addConstraint(Sketcher.Constraint("Coincident", 13, 2, 14, 1))
sketch8.addConstraint(Sketcher.Constraint("Coincident", 14, 2, 15, 1))
sketch8.addConstraint(Sketcher.Constraint("Coincident", 15, 2, 16, 1))
sketch8.addConstraint(Sketcher.Constraint("Coincident", 16, 2, 0, 1))
sketch8.addConstraint(Sketcher.Constraint("Horizontal", 1))
sketch8.addConstraint(Sketcher.Constraint("Vertical", 2))
sketch8.addConstraint(Sketcher.Constraint("Horizontal", 10))
sketch8.addConstraint(Sketcher.Constraint("Horizontal", 14))
sketch8.addConstraint(Sketcher.Constraint("PointOnObject", 2, 2, -1))
sketch8.addConstraint(Sketcher.Constraint("PointOnObject", 5, 2, -1))
sketch8.addConstraint(Sketcher.Constraint("PointOnObject", 9, 2, -1))
sketch8.addConstraint(Sketcher.Constraint("PointOnObject", 13, 2, -1))
sketch8.addConstraint(Sketcher.Constraint("Parallel", 0, 3))
sketch8.addConstraint(Sketcher.Constraint("Perpendicular", 3, 4))
sketch8.addConstraint(Sketcher.Constraint("Perpendicular", 4, 5))
sketch8.addConstraint(Sketcher.Constraint("Parallel", 5, 7))
sketch8.addConstraint(Sketcher.Constraint("Perpendicular", 7, 8))
sketch8.addConstraint(Sketcher.Constraint("Perpendicular", 8, 9))
sketch8.addConstraint(Sketcher.Constraint("Parallel", 9, 11))
sketch8.addConstraint(Sketcher.Constraint("Perpendicular", 11, 12))
sketch8.addConstraint(Sketcher.Constraint("Perpendicular", 12, 13))
sketch8.addConstraint(Sketcher.Constraint("Parallel", 13, 15))
sketch8.addConstraint(Sketcher.Constraint("Perpendicular", 15, 16))
sketch8.addConstraint(Sketcher.Constraint("Equal", 8, 12))
sketch8.addConstraint(Sketcher.Constraint("Equal", 12, 16))
sketch8.addConstraint(Sketcher.Constraint("Distance", 0, 20.0))
sketch8.addConstraint(Sketcher.Constraint("Distance", 8, 9.0))
sketch8.addConstraint(Sketcher.Constraint("Distance", 15, 14.0))
sketch8.addConstraint(Sketcher.Constraint("DistanceY", 2, 2, 2, 1, 4.5))
sketch8.addConstraint(Sketcher.Constraint("DistanceX", 10, 2, 10, 1, 10.219959))
sketch8.addConstraint(Sketcher.Constraint("DistanceX", -1, 1, 1, 2, 6.974801))
sketch8.addConstraint(Sketcher.Constraint("DistanceX", 9, 2, 8, 2, 2.3929))
sketch8.addConstraint(Sketcher.Constraint("Distance", 4, 11.447909))
sketch8.addConstraint(Sketcher.Constraint("DistanceX", 1, 1, 1, 2, 71.862105))
sketch8.addConstraint(Sketcher.Constraint("DistanceX", 14, 2, 14, 1, 11.629878))
sketch8.addConstraint(Sketcher.Constraint("DistanceX", -1, 1, 3, 2, 9.14229))
sketch8.addConstraint(Sketcher.Constraint("DistanceY", -1, 1, 6, 2, 0.405081))
sketch8.addConstraint(Sketcher.Constraint("DistanceX", 11, 2, -1, 1, 32.104479))
pad8 = body.newObject("PartDesign::Pad", "Pad007")
pad8.Profile = sketch8
pad8.Length = 2.5

# Sketch on YZ plane
sketch9 = body.newObject("Sketcher::SketchObject", "Sketch008")
sketch9.AttachmentSupport = (doc.getObject("YZ_Plane"), [""])
sketch9.MapMode = "FlatFace"
sketch9.AttachmentOffset = App.Placement(App.Vector(0, 0, -64.70637), App.Rotation())
sketch9.addGeometry(Part.LineSegment(App.Vector(-20, 0, 0), App.Vector(-24.5, 0, 0)), False)
sketch9.addGeometry(Part.LineSegment(App.Vector(-24.5, 0, 0), App.Vector(-24.5, 4.5, 0)), False)
sketch9.addGeometry(Part.LineSegment(App.Vector(-24.5, 4.5, 0), App.Vector(-20, 4.5, 0)), False)
sketch9.addGeometry(Part.LineSegment(App.Vector(-20, 4.5, 0), App.Vector(-20, 0, 0)), False)
sketch9.addConstraint(Sketcher.Constraint("Coincident", 0, 2, 1, 1))
sketch9.addConstraint(Sketcher.Constraint("Coincident", 1, 2, 2, 1))
sketch9.addConstraint(Sketcher.Constraint("Coincident", 2, 2, 3, 1))
sketch9.addConstraint(Sketcher.Constraint("Coincident", 3, 2, 0, 1))
sketch9.addConstraint(Sketcher.Constraint("Horizontal", 0))
sketch9.addConstraint(Sketcher.Constraint("Vertical", 1))
sketch9.addConstraint(Sketcher.Constraint("Horizontal", 2))
sketch9.addConstraint(Sketcher.Constraint("Vertical", 3))
sketch9.addConstraint(Sketcher.Constraint("PointOnObject", 0, 2, -1))
sketch9.addConstraint(Sketcher.Constraint("Equal", 2, 1))
sketch9.addConstraint(Sketcher.Constraint("DistanceX", 0, 2, 0, 1, 4.5))
sketch9.addConstraint(Sketcher.Constraint("DistanceX", 2, 2, -1, 1, 20.0))
pad9 = body.newObject("PartDesign::Pad", "Pad008")
pad9.Profile = sketch9
pad9.Length = 9.5
pad9.Reversed = True
doc.recompute()

fillet = body.newObject("PartDesign::Fillet", "Fillet")
fillet.Base = (pad9, edges_at(pad9, [
    (6.975, 27.118, 0),
    (-4.619, 27.118, 0),
    (-14.972, 27.118, 0),
    (-24.086, 27.118, 0),
    (-34.306, 27.118, 0),
    (-43.421, 27.118, 0),
    (-55.051, 27.118, 0),
    (-64.166, 27.118, 0),
]))
fillet.Radius = 4

doc.recompute()
